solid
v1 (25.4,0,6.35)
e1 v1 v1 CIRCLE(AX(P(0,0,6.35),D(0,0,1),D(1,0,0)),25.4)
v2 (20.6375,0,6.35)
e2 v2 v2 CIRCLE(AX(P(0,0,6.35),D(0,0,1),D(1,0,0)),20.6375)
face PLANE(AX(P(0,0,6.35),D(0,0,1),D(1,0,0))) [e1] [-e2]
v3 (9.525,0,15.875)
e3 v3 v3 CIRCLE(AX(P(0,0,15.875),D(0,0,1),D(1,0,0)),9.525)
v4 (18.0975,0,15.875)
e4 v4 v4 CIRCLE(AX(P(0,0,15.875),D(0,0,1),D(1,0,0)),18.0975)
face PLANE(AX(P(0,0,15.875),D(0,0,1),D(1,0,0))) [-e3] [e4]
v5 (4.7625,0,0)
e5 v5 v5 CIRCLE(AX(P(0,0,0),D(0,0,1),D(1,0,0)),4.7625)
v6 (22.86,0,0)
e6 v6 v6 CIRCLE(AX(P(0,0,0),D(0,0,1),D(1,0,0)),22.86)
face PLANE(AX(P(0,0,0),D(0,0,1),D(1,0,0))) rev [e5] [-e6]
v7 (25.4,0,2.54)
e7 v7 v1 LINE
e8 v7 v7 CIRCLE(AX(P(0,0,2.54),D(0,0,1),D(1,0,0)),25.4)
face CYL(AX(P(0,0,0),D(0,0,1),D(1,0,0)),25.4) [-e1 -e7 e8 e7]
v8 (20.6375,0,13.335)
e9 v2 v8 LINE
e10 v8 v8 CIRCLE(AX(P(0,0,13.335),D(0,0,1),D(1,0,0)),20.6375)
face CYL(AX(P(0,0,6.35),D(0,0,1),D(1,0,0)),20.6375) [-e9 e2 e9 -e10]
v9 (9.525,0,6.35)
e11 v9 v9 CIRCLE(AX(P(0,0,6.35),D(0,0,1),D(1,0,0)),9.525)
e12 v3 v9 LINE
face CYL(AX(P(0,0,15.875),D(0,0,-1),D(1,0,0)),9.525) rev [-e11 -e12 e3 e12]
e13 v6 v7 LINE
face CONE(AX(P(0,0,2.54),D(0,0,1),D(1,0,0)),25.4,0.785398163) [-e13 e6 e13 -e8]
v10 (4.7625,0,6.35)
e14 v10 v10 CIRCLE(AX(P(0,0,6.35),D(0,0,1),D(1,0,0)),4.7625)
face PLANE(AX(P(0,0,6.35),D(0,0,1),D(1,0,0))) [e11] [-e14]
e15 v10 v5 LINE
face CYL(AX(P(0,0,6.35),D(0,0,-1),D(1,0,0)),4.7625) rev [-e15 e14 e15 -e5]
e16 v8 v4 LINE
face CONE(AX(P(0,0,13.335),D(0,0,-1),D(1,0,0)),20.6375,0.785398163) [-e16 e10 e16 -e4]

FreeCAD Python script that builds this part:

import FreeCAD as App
import Part
import Sketcher

V = App.Vector
Q = App.Units.Quantity


def edges_at(feature, points):
    """Names of the edges that pass closest to the given points."""
    edges = feature.Shape.Edges
    near = lambda p: min(range(len(edges)), key=lambda i: edges[i].distToShape(Part.Vertex(*p))[0])
    return sorted({f"Edge{near(p) + 1}" for p in points})


def add_polygon(sketch, points):
    """Adds a closed chain of lines whose ends are joined by coincident constraints."""
    first, n = sketch.GeometryCount, len(points)
    for a, b in zip(points, points[1:] + points[:1]):
        sketch.addGeometry(Part.LineSegment(App.Vector(*a, 0), App.Vector(*b, 0)), False)
    for i in range(n):
        sketch.addConstraint(Sketcher.Constraint("Coincident", first + i, 2, first + (i + 1) % n, 1))

doc = App.newDocument("Part")
params = doc.addObject("Spreadsheet::Sheet", "Params")
for row, (alias, value) in enumerate([
    ("sketch1_height", "0.25 in"),
    ("sketch1_width", "0.8125 in"),
    ("sketch1_width2", "0.1875 in"),
    ("sketch1_height2", "0.375 in"),
    ("revolution_angle", "360 deg"),
    ("chamfer_size", "0.1 in"),
    ("chamfer_size2", "0.1 in"),
], start=1):
    params.set(f"A{row}", alias)
    params.set(f"B{row}", "=" + value)
    params.setAlias(f"B{row}", alias)

body = doc.addObject("PartDesign::Body", "Body")

# Sketch on XZ plane
sketch1 = body.newObject("Sketcher::SketchObject", "Sketch")
sketch1.AttachmentSupport = (doc.getObject("XZ_Plane"), [""])
sketch1.MapMode = "FlatFace"
add_polygon(sketch1, [(4.8, 0), (25.4, 0), (25.4, 6.3), (20.6, 6.3), (20.6, 15.9), (9.5, 15.9), (9.5, 6.3), (4.8, 6.3)])  # lines 0-7
sketch1.addConstraint(Sketcher.Constraint("Horizontal", 0))
sketch1.addConstraint(Sketcher.Constraint("Vertical", 1))
sketch1.addConstraint(Sketcher.Constraint("Horizontal", 2))
sketch1.addConstraint(Sketcher.Constraint("Vertical", 3))
sketch1.addConstraint(Sketcher.Constraint("Horizontal", 4))
sketch1.addConstraint(Sketcher.Constraint("Vertical", 5))
sketch1.addConstraint(Sketcher.Constraint("Horizontal", 6))
sketch1.addConstraint(Sketcher.Constraint("Vertical", 7))
sketch1.addConstraint(Sketcher.Constraint("PointOnObject", 0, 2, -1))
sketch1.addConstraint(Sketcher.Constraint("Horizontal", 2, 2, 5, 2))
sketch1.addConstraint(Sketcher.Constraint("Equal", 2, 6))
sketch1.addConstraint(Sketcher.Constraint("DistanceX", -1, 1, 0, 2, Q("1 in")))
sketch1.addConstraint(Sketcher.Constraint("DistanceY", 1, 1, 1, 2, Q("0.25 in")))
sketch1.addConstraint(Sketcher.Constraint("DistanceX", 0, 1, 0, 2, Q("0.8125 in")))
sketch1.addConstraint(Sketcher.Constraint("DistanceX", 2, 2, 2, 1, Q("0.1875 in")))
sketch1.addConstraint(Sketcher.Constraint("DistanceY", 3, 1, 3, 2, Q("0.375 in")))
sketch1.setExpression("Constraints[20]", "Params.sketch1_height")
sketch1.setExpression("Constraints[21]", "Params.sketch1_width")
sketch1.setExpression("Constraints[22]", "Params.sketch1_width2")
sketch1.setExpression("Constraints[23]", "Params.sketch1_height2")
revolution = body.newObject("PartDesign::Revolution", "Revolution")
revolution.Profile = sketch1
revolution.ReferenceAxis = (sketch1, ["V_Axis"])
revolution.setExpression("Angle", "Params.revolution_angle")
doc.recompute()

chamfer = body.newObject("PartDesign::Chamfer", "Chamfer")
chamfer.Base = (revolution, edges_at(revolution, [(-20.637, 0, 15.875), (-25.4, 0, 0)]))
chamfer.ChamferType = "Two distances"
chamfer.setExpression("Size", "Params.chamfer_size")
chamfer.setExpression("Size2", "Params.chamfer_size2")

doc.recompute()
